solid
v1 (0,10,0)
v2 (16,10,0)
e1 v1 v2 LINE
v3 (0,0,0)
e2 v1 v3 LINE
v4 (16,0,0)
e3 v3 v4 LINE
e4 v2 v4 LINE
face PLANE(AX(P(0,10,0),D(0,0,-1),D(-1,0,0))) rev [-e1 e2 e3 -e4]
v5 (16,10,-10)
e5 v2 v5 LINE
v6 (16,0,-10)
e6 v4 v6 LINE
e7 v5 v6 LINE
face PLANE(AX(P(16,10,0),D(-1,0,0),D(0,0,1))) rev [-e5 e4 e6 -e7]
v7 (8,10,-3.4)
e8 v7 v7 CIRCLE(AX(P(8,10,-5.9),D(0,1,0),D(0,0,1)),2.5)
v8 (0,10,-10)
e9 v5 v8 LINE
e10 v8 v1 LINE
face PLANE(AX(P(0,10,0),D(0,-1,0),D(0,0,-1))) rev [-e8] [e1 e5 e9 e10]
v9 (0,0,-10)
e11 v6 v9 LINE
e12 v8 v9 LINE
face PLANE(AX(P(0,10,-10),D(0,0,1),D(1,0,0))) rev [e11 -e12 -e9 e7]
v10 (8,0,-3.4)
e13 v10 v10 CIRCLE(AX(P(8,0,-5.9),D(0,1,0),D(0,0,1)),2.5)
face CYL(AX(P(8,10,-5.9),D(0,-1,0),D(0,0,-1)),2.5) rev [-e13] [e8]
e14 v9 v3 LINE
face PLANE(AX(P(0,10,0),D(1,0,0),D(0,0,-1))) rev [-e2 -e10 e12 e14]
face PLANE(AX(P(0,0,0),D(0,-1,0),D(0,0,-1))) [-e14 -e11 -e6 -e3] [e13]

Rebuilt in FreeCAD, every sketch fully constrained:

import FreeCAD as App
import Part
import Sketcher

V = App.Vector


def add_polygon(sketch, points):
    """Adds a closed chain of lines whose ends are joined by coincident constraints."""
    first, n = sketch.GeometryCount, len(points)
    for a, b in zip(points, points[1:] + points[:1]):
        sketch.addGeometry(Part.LineSegment(App.Vector(*a, 0), App.Vector(*b, 0)), False)
    for i in range(n):
        sketch.addConstraint(Sketcher.Constraint("Coincident", first + i, 2, first + (i + 1) % n, 1))

doc = App.newDocument("Part")
params = doc.addObject("Spreadsheet::Sheet", "Params")
for row, (alias, value) in enumerate([
    ("sketch1_diameter", "5 mm"),
    ("sketch1_width", "16 mm"),
    ("sketch1_height", "10 mm"),
    ("pad1_length", "10 mm"),
], start=1):
    params.set(f"A{row}", alias)
    params.set(f"B{row}", "=" + value)
    params.setAlias(f"B{row}", alias)

body = doc.addObject("PartDesign::Body", "Body")

sketch1 = body.newObject("Sketcher::SketchObject", "Sketch")
sketch1.AttachmentSupport = (doc.getObject("XZ_Plane"), [""])
sketch1.MapMode = "FlatFace"
add_polygon(sketch1, [(0, -10), (0, 0), (16, 0), (16, -10)])
sketch1.addGeometry(Part.Circle(V(8, -5.9, 0), V(0, 0, 1), 2.5), False)
sketch1.addConstraint([
    Sketcher.Constraint("Vertical", 0),
    Sketcher.Constraint("Horizontal", 1),
    Sketcher.Constraint("Vertical", 2),
    Sketcher.Constraint("Horizontal", 3),
    Sketcher.Constraint("Coincident", 0, 2, -1, 1),
    Sketcher.Constraint("Diameter", 4, 5.0),
    Sketcher.Constraint("DistanceX", 1, 1, 1, 2, 16.0),
    Sketcher.Constraint("DistanceY", 0, 1, 0, 2, 10.0),
    Sketcher.Constraint("DistanceX", -1, 1, 4, 3, 8.0),
    Sketcher.Constraint("DistanceY", 4, 3, -1, 1, 5.9),
])
sketch1.setExpression("Constraints[9]", "Params.sketch1_diameter")
sketch1.setExpression("Constraints[10]", "Params.sketch1_width")
sketch1.setExpression("Constraints[11]", "Params.sketch1_height")
pad1 = body.newObject("PartDesign::Pad", "Pad")
pad1.Profile = sketch1
pad1.setExpression("Length", "Params.pad1_length")
pad1.Reversed = True

doc.recompute()
